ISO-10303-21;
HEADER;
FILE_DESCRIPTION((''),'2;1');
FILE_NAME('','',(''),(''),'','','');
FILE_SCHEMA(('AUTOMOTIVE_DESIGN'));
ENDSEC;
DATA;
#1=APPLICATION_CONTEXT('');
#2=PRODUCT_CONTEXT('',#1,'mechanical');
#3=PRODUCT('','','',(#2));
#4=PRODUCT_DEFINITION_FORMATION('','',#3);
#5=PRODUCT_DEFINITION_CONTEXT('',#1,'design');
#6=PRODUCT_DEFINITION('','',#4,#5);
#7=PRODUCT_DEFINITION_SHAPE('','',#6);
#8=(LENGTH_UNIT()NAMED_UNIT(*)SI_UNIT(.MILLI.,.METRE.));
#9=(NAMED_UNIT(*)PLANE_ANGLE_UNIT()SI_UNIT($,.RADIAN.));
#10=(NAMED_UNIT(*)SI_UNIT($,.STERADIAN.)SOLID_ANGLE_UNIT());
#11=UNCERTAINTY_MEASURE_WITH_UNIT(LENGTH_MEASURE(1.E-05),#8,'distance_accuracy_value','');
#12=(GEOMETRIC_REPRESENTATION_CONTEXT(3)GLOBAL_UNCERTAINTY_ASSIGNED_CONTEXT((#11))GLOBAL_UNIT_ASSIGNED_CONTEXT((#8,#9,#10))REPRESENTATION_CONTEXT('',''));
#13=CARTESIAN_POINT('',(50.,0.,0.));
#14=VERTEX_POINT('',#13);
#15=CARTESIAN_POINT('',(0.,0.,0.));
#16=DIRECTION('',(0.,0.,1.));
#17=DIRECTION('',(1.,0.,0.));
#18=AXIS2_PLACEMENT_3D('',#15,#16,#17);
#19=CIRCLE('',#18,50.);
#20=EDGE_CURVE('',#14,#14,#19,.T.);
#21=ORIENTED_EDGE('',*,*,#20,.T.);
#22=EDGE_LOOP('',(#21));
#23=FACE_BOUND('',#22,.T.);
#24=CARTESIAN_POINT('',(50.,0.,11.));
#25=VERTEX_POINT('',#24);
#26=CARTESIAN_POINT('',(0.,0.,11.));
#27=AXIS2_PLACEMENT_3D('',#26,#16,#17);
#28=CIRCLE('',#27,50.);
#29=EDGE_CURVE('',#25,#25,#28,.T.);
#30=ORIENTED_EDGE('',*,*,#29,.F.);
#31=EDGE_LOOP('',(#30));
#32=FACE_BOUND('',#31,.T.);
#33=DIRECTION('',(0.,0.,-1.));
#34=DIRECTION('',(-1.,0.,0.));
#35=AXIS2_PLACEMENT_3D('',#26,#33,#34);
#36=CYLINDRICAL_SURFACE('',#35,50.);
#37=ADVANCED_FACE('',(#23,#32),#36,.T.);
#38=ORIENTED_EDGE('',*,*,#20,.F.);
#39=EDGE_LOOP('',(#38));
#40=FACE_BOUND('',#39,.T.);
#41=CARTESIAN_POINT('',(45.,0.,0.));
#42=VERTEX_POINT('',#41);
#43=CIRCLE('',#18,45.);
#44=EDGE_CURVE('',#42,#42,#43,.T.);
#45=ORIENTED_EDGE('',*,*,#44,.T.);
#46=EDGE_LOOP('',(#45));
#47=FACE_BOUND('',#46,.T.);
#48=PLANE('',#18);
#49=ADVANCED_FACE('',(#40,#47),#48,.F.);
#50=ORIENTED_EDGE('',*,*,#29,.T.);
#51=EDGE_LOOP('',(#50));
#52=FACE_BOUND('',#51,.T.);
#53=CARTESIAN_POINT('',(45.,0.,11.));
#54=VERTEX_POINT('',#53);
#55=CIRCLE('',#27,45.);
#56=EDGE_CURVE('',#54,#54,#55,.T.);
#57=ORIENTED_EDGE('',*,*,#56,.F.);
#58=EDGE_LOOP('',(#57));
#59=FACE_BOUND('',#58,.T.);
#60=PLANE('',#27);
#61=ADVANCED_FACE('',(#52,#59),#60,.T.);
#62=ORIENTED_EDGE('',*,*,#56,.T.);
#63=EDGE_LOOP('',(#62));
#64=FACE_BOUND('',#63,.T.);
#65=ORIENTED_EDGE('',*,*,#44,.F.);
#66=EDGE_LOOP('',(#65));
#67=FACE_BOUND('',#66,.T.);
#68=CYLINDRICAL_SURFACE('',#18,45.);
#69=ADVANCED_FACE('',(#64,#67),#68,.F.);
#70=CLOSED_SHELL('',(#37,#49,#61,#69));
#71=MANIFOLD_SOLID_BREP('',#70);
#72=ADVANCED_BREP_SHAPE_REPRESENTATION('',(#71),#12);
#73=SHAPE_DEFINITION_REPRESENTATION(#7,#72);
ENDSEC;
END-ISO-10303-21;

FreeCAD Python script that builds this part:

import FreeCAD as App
import Part
import Sketcher

V = App.Vector

doc = App.newDocument("Part")
body = doc.addObject("PartDesign::Body", "Body")

# Sketch on XY plane
sketch1 = body.newObject("Sketcher::SketchObject", "Sketch")
sketch1.AttachmentSupport = (doc.getObject("XY_Plane"), [""])
sketch1.MapMode = "FlatFace"
sketch1.addGeometry(Part.Circle(V(0, 0, 0), V(0, 0, 1), 50), False)
sketch1.addConstraint(Sketcher.Constraint("Coincident", 0, 3, -1, 1))
sketch1.addConstraint(Sketcher.Constraint("Diameter", 0, 100.0))
pad1 = body.newObject("PartDesign::Pad", "Pad")
pad1.Profile = sketch1
pad1.Length = 11

# Sketch on XY plane
sketch2 = body.newObject("Sketcher::SketchObject", "Sketch001")
sketch2.AttachmentSupport = (doc.getObject("XY_Plane"), [""])
sketch2.MapMode = "FlatFace"
sketch2.AttachmentOffset = App.Placement(V(0, 0, 11), App.Rotation())
sketch2.addGeometry(Part.Circle(V(0, 0, 0), V(0, 0, 1), 45), False)
sketch2.addConstraint(Sketcher.Constraint("Coincident", 0, 3, -1, 1))
sketch2.addConstraint(Sketcher.Constraint("Diameter", 0, 90.0))
pocket1 = body.newObject("PartDesign::Pocket", "Pocket")
pocket1.Profile = sketch2
pocket1.Type = "ThroughAll"
pocket1.Midplane = True

doc.recompute()
